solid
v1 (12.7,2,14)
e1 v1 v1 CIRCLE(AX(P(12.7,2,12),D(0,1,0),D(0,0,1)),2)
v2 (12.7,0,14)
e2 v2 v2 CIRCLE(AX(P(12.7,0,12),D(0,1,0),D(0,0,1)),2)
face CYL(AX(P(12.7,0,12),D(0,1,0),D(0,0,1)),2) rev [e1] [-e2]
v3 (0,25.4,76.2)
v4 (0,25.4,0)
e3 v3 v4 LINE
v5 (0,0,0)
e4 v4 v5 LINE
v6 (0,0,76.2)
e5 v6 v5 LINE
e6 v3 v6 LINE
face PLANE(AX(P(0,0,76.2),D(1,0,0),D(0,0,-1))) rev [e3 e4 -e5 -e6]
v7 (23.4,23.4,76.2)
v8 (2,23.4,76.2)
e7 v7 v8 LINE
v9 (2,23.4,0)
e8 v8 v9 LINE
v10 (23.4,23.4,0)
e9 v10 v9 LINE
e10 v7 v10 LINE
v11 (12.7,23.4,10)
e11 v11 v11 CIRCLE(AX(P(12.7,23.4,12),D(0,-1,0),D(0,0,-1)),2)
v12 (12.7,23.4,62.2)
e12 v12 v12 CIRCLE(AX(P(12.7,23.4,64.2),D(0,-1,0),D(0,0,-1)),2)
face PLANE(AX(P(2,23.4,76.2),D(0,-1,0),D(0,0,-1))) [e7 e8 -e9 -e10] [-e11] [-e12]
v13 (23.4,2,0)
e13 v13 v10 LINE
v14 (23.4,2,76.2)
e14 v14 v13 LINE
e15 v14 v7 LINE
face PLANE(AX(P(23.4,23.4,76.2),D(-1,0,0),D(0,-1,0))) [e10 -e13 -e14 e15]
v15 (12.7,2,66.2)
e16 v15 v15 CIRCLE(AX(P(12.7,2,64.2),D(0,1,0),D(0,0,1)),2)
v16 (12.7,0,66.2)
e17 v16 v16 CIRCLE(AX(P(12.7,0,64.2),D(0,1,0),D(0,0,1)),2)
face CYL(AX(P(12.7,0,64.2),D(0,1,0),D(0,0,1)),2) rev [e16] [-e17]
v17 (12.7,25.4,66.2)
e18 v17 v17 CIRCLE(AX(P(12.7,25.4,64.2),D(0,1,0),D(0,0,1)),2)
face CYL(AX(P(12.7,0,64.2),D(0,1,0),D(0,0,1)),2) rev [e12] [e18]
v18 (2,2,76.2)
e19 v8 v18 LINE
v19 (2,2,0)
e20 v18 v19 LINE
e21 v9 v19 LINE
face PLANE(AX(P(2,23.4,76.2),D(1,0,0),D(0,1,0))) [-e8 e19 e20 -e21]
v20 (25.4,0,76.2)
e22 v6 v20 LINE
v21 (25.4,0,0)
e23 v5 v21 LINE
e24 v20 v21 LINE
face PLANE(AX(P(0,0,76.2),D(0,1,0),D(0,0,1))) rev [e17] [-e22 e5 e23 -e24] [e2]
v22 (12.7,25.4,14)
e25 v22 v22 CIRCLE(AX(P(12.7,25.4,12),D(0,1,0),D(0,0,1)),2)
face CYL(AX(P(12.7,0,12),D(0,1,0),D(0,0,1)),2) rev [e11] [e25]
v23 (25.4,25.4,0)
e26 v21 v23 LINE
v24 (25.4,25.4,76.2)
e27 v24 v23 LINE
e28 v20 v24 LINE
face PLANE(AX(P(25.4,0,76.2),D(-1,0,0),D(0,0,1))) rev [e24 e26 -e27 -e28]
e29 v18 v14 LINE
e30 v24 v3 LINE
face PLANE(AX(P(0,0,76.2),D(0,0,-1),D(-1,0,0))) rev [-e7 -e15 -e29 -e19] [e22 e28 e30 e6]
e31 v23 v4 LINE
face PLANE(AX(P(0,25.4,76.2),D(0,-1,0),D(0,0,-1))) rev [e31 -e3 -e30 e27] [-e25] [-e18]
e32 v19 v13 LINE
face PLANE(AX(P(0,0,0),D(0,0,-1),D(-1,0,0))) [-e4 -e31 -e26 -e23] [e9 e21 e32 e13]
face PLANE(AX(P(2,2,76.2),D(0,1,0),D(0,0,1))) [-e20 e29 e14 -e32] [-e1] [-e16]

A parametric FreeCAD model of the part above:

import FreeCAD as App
import Part
import Sketcher

V = App.Vector


def add_polygon(sketch, points):
    """Adds a closed chain of lines whose ends are joined by coincident constraints."""
    first, n = sketch.GeometryCount, len(points)
    for a, b in zip(points, points[1:] + points[:1]):
        sketch.addGeometry(Part.LineSegment(App.Vector(*a, 0), App.Vector(*b, 0)), False)
    for i in range(n):
        sketch.addConstraint(Sketcher.Constraint("Coincident", first + i, 2, first + (i + 1) % n, 1))

doc = App.newDocument("Part")
body = doc.addObject("PartDesign::Body", "Body")

sketch1 = doc.addObject("Sketcher::SketchObject", "Sketch")
body.addObject(sketch1)
sketch1.AttachmentSupport = (doc.XY_Plane, [""])
sketch1.MapMode = "FlatFace"
add_polygon(sketch1, [(0, 25), (0, 0), (25, 0), (25, 25)])
add_polygon(sketch1, [(23, 2), (2, 2), (2, 23), (23, 23)])
sketch1.addConstraint([
    Sketcher.Constraint("Vertical", 0),
    Sketcher.Constraint("Horizontal", 1),
    Sketcher.Constraint("Vertical", 2),
    Sketcher.Constraint("Horizontal", 3),
    Sketcher.Constraint("Horizontal", 4),
    Sketcher.Constraint("Vertical", 5),
    Sketcher.Constraint("Horizontal", 6),
    Sketcher.Constraint("Vertical", 7),
    Sketcher.Constraint("Coincident", 0, 2, -1, 1),
    Sketcher.Constraint("Equal", 3, 0),
    Sketcher.Constraint("Equal", 6, 5),
    Sketcher.Constraint("DistanceX", 1, 1, 1, 2, 25.4),
    Sketcher.Constraint("DistanceX", 4, 2, 4, 1, 21.4),
    Sketcher.Constraint("DistanceX", -1, 1, 4, 2, 2.0),
    Sketcher.Constraint("DistanceY", -1, 1, 4, 2, 2.0),
])
pad1 = doc.addObject("PartDesign::Pad", "Pad")
body.addObject(pad1)
pad1.Profile = sketch1
pad1.Length = 76.2

sketch2 = doc.addObject("Sketcher::SketchObject", "Sketch001")
body.addObject(sketch2)
sketch2.AttachmentSupport = (doc.XZ_Plane, [""])
sketch2.MapMode = "FlatFace"
sketch2.AttachmentOffset = App.Placement(V(0, 0, -25.4), App.Rotation())
sketch2.addGeometry([
    Part.Circle(V(12.7, 12, 0), V(0, 0, 1), 2),
    Part.Circle(V(12.7, 64.2, 0), V(0, 0, 1), 2),
], False)
sketch2.addConstraint([
    Sketcher.Constraint("Equal", 0, 1),
    Sketcher.Constraint("Vertical", 0, 3, 1, 3),
    Sketcher.Constraint("Diameter", 0, 4.0),
    Sketcher.Constraint("DistanceY", -1, 1, 0, 3, 12.0),
    Sketcher.Constraint("DistanceX", -1, 1, 0, 3, 12.7),
    Sketcher.Constraint("DistanceY", -1, 1, 1, 3, 64.2),
])
pocket1 = doc.addObject("PartDesign::Pocket", "Pocket")
body.addObject(pocket1)
pocket1.Profile = sketch2
pocket1.Type = "ThroughAll"
pocket1.Reversed = True

doc.recompute()
